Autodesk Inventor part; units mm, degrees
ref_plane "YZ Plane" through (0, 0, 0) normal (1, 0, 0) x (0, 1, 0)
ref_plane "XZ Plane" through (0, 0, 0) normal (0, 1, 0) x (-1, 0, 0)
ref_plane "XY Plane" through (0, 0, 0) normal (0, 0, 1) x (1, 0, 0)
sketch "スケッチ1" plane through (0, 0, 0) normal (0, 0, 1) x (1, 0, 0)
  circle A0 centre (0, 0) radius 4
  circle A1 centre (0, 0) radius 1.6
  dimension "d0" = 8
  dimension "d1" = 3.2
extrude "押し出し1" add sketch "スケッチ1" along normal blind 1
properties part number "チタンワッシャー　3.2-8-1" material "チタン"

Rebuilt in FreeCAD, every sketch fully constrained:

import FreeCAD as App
import Part
import Sketcher
from FreeCAD import Vector
Q = App.Units.Quantity

doc = App.newDocument("Part")
body = doc.addObject("PartDesign::Body", "Body")

# Sketch on XY plane
sketch1 = body.newObject("Sketcher::SketchObject", "Sketch")
sketch1.AttachmentSupport = (doc.getObject("XY_Plane"), [""])
sketch1.MapMode = "FlatFace"
sketch1.addGeometry([
    Part.Circle(Vector(0, 0, 0), Vector(0, 0, 1), 4),
    Part.Circle(Vector(0, 0, 0), Vector(0, 0, 1), 1.6),
], False)
sketch1.addConstraint([
    Sketcher.Constraint("Coincident", 0, 3, -1, 1),
    Sketcher.Constraint("Coincident", 1, 3, -1, 1),
    Sketcher.Constraint("Diameter", 0, Q("8 mm")),
    Sketcher.Constraint("Diameter", 1, Q("3.2 mm")),
])
pad1 = body.newObject("PartDesign::Pad", "Pad")
pad1.Profile = sketch1
pad1.Length = 1

doc.recompute()
